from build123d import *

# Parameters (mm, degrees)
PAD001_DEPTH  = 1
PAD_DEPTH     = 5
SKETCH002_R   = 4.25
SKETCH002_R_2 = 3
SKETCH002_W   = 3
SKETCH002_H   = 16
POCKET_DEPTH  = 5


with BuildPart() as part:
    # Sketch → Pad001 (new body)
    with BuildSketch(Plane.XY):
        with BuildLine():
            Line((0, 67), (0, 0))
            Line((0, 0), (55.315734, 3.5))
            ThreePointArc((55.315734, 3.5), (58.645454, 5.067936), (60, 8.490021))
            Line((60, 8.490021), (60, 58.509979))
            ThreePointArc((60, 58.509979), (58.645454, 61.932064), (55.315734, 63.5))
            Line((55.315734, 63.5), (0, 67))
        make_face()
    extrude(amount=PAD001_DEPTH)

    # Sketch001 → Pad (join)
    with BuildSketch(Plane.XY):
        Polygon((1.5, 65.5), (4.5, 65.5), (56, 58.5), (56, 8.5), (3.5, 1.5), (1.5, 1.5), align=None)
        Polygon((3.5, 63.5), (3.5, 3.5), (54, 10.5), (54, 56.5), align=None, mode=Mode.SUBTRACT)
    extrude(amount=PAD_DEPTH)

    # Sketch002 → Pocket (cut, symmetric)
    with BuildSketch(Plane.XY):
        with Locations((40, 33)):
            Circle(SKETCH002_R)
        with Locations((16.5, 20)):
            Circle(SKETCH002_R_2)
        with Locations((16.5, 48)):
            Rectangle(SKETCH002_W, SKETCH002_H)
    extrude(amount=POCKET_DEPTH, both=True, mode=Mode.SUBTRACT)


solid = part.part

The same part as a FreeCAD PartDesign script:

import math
import FreeCAD as App
import Part
import Sketcher
Q = App.Units.Quantity

doc = App.newDocument("Part")
body = doc.addObject("PartDesign::Body", "Body")

# Sketch on XY plane
sketch1 = body.newObject("Sketcher::SketchObject", "Sketch")
sketch1.AttachmentSupport = (doc.getObject("XY_Plane"), [""])
sketch1.MapMode = "FlatFace"
sketch1.addGeometry(Part.LineSegment(App.Vector(0, 67, 0), App.Vector(0, 0, 0)), False)
sketch1.addGeometry(Part.LineSegment(App.Vector(0, 0, 0), App.Vector(55.315734, 3.5, 0)), False)
sketch1.addGeometry(Part.ArcOfCircle(Part.Circle(App.Vector(55.000001, 8.490021, 0), App.Vector(0, 0, 1), 4.999999), math.radians(-86.379553), math.radians(0.000004)), False)
sketch1.addGeometry(Part.LineSegment(App.Vector(60, 8.490021, 0), App.Vector(60, 58.509979, 0)), False)
sketch1.addGeometry(Part.ArcOfCircle(Part.Circle(App.Vector(55.000001, 58.509979, 0), App.Vector(0, 0, 1), 4.999999), math.radians(-0.000004), math.radians(86.379553)), False)
sketch1.addGeometry(Part.LineSegment(App.Vector(55.315734, 63.5, 0), App.Vector(0, 67, 0)), False)
sketch1.addConstraint(Sketcher.Constraint("Coincident", 0, 2, 1, 1))
sketch1.addConstraint(Sketcher.Constraint("Tangent", 1, 2, 2, 1))
sketch1.addConstraint(Sketcher.Constraint("Tangent", 2, 2, 3, 1))
sketch1.addConstraint(Sketcher.Constraint("Tangent", 3, 2, 4, 1))
sketch1.addConstraint(Sketcher.Constraint("Tangent", 4, 2, 5, 1))
sketch1.addConstraint(Sketcher.Constraint("Coincident", 5, 2, 0, 1))
sketch1.addConstraint(Sketcher.Constraint("Vertical", 0))
sketch1.addConstraint(Sketcher.Constraint("Vertical", 3))
sketch1.addConstraint(Sketcher.Constraint("Coincident", 0, 2, -1, 1))
sketch1.addConstraint(Sketcher.Constraint("Equal", 2, 4))
sketch1.addConstraint(Sketcher.Constraint("Vertical", 1, 2, 4, 2))
sketch1.addConstraint(Sketcher.Constraint("Radius", 2, Q("4.999999 mm")))
sketch1.addConstraint(Sketcher.Constraint("DistanceY", 0, 2, 0, 1, Q("67 mm")))
sketch1.addConstraint(Sketcher.Constraint("DistanceX", -1, 1, 2, 3, Q("55.000001 mm")))
sketch1.addConstraint(Sketcher.Constraint("DistanceY", 1, 2, 4, 2, Q("60 mm")))
pad1 = body.newObject("PartDesign::Pad", "Pad")
pad1.Profile = sketch1
pad1.Length = 1

# Sketch on XY plane
sketch2 = body.newObject("Sketcher::SketchObject", "Sketch001")
sketch2.AttachmentSupport = (doc.getObject("XY_Plane"), [""])
sketch2.MapMode = "FlatFace"
sketch2.addGeometry(Part.LineSegment(App.Vector(4.5, 65.5, 0), App.Vector(1.5, 65.5, 0)), False)
sketch2.addGeometry(Part.LineSegment(App.Vector(1.5, 65.5, 0), App.Vector(1.5, 1.5, 0)), False)
sketch2.addGeometry(Part.LineSegment(App.Vector(1.5, 1.5, 0), App.Vector(3.5, 1.5, 0)), False)
sketch2.addGeometry(Part.LineSegment(App.Vector(3.5, 1.5, 0), App.Vector(56, 8.5, 0)), False)
sketch2.addGeometry(Part.LineSegment(App.Vector(56, 8.5, 0), App.Vector(56, 58.5, 0)), False)
sketch2.addGeometry(Part.LineSegment(App.Vector(56, 58.5, 0), App.Vector(4.5, 65.5, 0)), False)
sketch2.addGeometry(Part.LineSegment(App.Vector(3.5, 63.5, 0), App.Vector(54, 56.5, 0)), False)
sketch2.addGeometry(Part.LineSegment(App.Vector(54, 56.5, 0), App.Vector(54, 10.5, 0)), False)
sketch2.addGeometry(Part.LineSegment(App.Vector(54, 10.5, 0), App.Vector(3.5, 3.5, 0)), False)
sketch2.addGeometry(Part.LineSegment(App.Vector(3.5, 3.5, 0), App.Vector(3.5, 63.5, 0)), False)
sketch2.addConstraint(Sketcher.Constraint("Coincident", 0, 2, 1, 1))
sketch2.addConstraint(Sketcher.Constraint("Coincident", 1, 2, 2, 1))
sketch2.addConstraint(Sketcher.Constraint("Coincident", 2, 2, 3, 1))
sketch2.addConstraint(Sketcher.Constraint("Coincident", 3, 2, 4, 1))
sketch2.addConstraint(Sketcher.Constraint("Coincident", 4, 2, 5, 1))
sketch2.addConstraint(Sketcher.Constraint("Coincident", 5, 2, 0, 1))
sketch2.addConstraint(Sketcher.Constraint("Coincident", 6, 2, 7, 1))
sketch2.addConstraint(Sketcher.Constraint("Coincident", 7, 2, 8, 1))
sketch2.addConstraint(Sketcher.Constraint("Coincident", 8, 2, 9, 1))
sketch2.addConstraint(Sketcher.Constraint("Coincident", 9, 2, 6, 1))
sketch2.addConstraint(Sketcher.Constraint("Horizontal", 0))
sketch2.addConstraint(Sketcher.Constraint("Vertical", 1))
sketch2.addConstraint(Sketcher.Constraint("Horizontal", 2))
sketch2.addConstraint(Sketcher.Constraint("Vertical", 4))
sketch2.addConstraint(Sketcher.Constraint("Vertical", 7))
sketch2.addConstraint(Sketcher.Constraint("Vertical", 9))
sketch2.addConstraint(Sketcher.Constraint("Vertical", 2, 2, 8, 2))
sketch2.addConstraint(Sketcher.Constraint("Equal", 6, 8))
sketch2.addConstraint(Sketcher.Constraint("DistanceX", 0, 2, 0, 1, Q("3 mm")))
sketch2.addConstraint(Sketcher.Constraint("DistanceX", 2, 1, 2, 2, Q("2 mm")))
sketch2.addConstraint(Sketcher.Constraint("DistanceY", 1, 2, 1, 1, Q("64 mm")))
sketch2.addConstraint(Sketcher.Constraint("DistanceY", 4, 1, 4, 2, Q("50 mm")))
sketch2.addConstraint(Sketcher.Constraint("DistanceY", 7, 2, 7, 1, Q("46 mm")))
sketch2.addConstraint(Sketcher.Constraint("DistanceY", 9, 1, 9, 2, Q("60 mm")))
sketch2.addConstraint(Sketcher.Constraint("DistanceX", -1, 1, 3, 2, Q("56 mm")))
sketch2.addConstraint(Sketcher.Constraint("DistanceX", -1, 1, 6, 2, Q("54 mm")))
sketch2.addConstraint(Sketcher.Constraint("DistanceY", 2, 2, 3, 2, Q("7 mm")))
sketch2.addConstraint(Sketcher.Constraint("DistanceY", 6, 2, 4, 2, Q("2 mm")))
sketch2.addConstraint(Sketcher.Constraint("DistanceX", -1, 1, 0, 2, Q("1.5 mm")))
sketch2.addConstraint(Sketcher.Constraint("DistanceY", -1, 1, 0, 2, Q("65.5 mm")))
pad2 = body.newObject("PartDesign::Pad", "Pad001")
pad2.Profile = sketch2
pad2.Length = 5

# Sketch on XY plane
sketch3 = body.newObject("Sketcher::SketchObject", "Sketch002")
sketch3.AttachmentSupport = (doc.getObject("XY_Plane"), [""])
sketch3.MapMode = "FlatFace"
sketch3.addGeometry(Part.Circle(App.Vector(40, 33, 0), App.Vector(0, 0, 1), 4.25), False)
sketch3.addGeometry(Part.Circle(App.Vector(16.5, 20, 0), App.Vector(0, 0, 1), 3), False)
sketch3.addGeometry(Part.LineSegment(App.Vector(15, 56, 0), App.Vector(15, 40, 0)), False)
sketch3.addGeometry(Part.LineSegment(App.Vector(15, 40, 0), App.Vector(18, 40, 0)), False)
sketch3.addGeometry(Part.LineSegment(App.Vector(18, 40, 0), App.Vector(18, 56, 0)), False)
sketch3.addGeometry(Part.LineSegment(App.Vector(18, 56, 0), App.Vector(15, 56, 0)), False)
sketch3.addConstraint(Sketcher.Constraint("Coincident", 2, 2, 3, 1))
sketch3.addConstraint(Sketcher.Constraint("Coincident", 3, 2, 4, 1))
sketch3.addConstraint(Sketcher.Constraint("Coincident", 4, 2, 5, 1))
sketch3.addConstraint(Sketcher.Constraint("Coincident", 5, 2, 2, 1))
sketch3.addConstraint(Sketcher.Constraint("Vertical", 2))
sketch3.addConstraint(Sketcher.Constraint("Horizontal", 3))
sketch3.addConstraint(Sketcher.Constraint("Vertical", 4))
sketch3.addConstraint(Sketcher.Constraint("Horizontal", 5))
sketch3.addConstraint(Sketcher.Constraint("Diameter", 1, Q("6 mm")))
sketch3.addConstraint(Sketcher.Constraint("Diameter", 0, Q("8.5 mm")))
sketch3.addConstraint(Sketcher.Constraint("DistanceX", 3, 1, 3, 2, Q("3 mm")))
sketch3.addConstraint(Sketcher.Constraint("DistanceY", 2, 2, 2, 1, Q("16 mm")))
sketch3.addConstraint(Sketcher.Constraint("DistanceX", -1, 1, 0, 3, Q("40 mm")))
sketch3.addConstraint(Sketcher.Constraint("DistanceY", -1, 1, 0, 3, Q("33 mm")))
sketch3.addConstraint(Sketcher.Constraint("DistanceY", -1, 1, 1, 3, Q("20 mm")))
sketch3.addConstraint(Sketcher.Constraint("DistanceX", -1, 1, 2, 2, Q("15 mm")))
sketch3.addConstraint(Sketcher.Constraint("DistanceY", -1, 1, 2, 2, Q("40 mm")))
sketch3.addConstraint(Sketcher.Constraint("DistanceX", -1, 1, 1, 3, Q("16.5 mm")))
pocket1 = body.newObject("PartDesign::Pocket", "Pocket")
pocket1.Profile = sketch3
pocket1.Length = 10
pocket1.Midplane = True

doc.recompute()
